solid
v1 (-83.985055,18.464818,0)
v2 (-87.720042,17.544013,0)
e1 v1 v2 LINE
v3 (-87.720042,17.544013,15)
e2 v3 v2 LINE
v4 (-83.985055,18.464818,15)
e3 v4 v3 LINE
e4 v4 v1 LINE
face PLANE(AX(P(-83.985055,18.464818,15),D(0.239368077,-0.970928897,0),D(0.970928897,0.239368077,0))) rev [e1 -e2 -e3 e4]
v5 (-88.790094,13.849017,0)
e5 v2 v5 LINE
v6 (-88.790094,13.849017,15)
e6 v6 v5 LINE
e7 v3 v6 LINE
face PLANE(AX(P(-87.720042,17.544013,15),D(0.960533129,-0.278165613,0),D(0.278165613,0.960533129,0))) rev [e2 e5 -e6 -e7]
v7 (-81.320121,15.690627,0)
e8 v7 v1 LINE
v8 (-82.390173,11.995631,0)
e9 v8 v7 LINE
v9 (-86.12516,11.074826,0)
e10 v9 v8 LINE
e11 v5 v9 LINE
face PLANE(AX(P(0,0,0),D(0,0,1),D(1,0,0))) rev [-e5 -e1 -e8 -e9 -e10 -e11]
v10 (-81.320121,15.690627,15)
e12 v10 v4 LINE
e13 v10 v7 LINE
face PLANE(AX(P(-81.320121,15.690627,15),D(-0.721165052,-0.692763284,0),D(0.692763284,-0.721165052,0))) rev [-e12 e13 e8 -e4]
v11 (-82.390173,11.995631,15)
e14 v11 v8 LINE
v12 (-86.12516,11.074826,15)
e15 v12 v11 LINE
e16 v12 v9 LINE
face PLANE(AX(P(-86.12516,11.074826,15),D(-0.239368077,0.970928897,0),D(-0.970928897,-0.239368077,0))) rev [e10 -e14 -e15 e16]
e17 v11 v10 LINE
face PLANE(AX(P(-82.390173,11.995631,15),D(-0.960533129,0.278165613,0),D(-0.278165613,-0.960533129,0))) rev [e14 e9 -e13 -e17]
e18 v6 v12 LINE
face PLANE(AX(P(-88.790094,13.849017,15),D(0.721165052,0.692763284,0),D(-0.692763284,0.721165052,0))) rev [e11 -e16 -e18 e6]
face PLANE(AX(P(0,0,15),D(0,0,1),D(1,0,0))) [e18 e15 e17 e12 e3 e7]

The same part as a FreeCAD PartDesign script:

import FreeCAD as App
import Part
import Sketcher

doc = App.newDocument("Part")
body = doc.addObject("PartDesign::Body", "Body")

sketch1 = body.newObject("Sketcher::SketchObject", "Sketch")
sketch1.AttachmentSupport = (doc.getObject("XY_Plane"), [""])
sketch1.MapMode = "FlatFace"
sketch1.addGeometry([
    Part.LineSegment(App.Vector(-84, 18.5, 0), App.Vector(-87.7, 17.5, 0)),
    Part.LineSegment(App.Vector(-87.7, 17.5, 0), App.Vector(-88.8, 13.8, 0)),
    Part.LineSegment(App.Vector(-88.8, 13.8, 0), App.Vector(-86.1, 11.1, 0)),
    Part.LineSegment(App.Vector(-86.1, 11.1, 0), App.Vector(-82.4, 12, 0)),
    Part.LineSegment(App.Vector(-82.4, 12, 0), App.Vector(-81.3, 15.7, 0)),
    Part.LineSegment(App.Vector(-81.3, 15.7, 0), App.Vector(-84, 18.5, 0)),
], False)
sketch1.addConstraint([
    Sketcher.Constraint("Coincident", 0, 2, 1, 1),
    Sketcher.Constraint("Coincident", 1, 2, 2, 1),
    Sketcher.Constraint("Coincident", 2, 2, 3, 1),
    Sketcher.Constraint("Coincident", 3, 2, 4, 1),
    Sketcher.Constraint("Coincident", 4, 2, 5, 1),
    Sketcher.Constraint("Coincident", 5, 2, 0, 1),
    Sketcher.Constraint("Parallel", 0, 3),
    Sketcher.Constraint("Parallel", 1, 4),
    Sketcher.Constraint("Parallel", 2, 5),
    Sketcher.Constraint("Equal", 0, 1),
    Sketcher.Constraint("Equal", 1, 2),
    Sketcher.Constraint("Equal", 2, 3),
    Sketcher.Constraint("DistanceY", 2, 2, 4, 2, 4.615802),
    Sketcher.Constraint("DistanceX", 0, 2, -1, 1, 87.720042),
    Sketcher.Constraint("DistanceX", 2, 2, -1, 1, 86.12516),
    Sketcher.Constraint("DistanceY", -1, 1, 3, 2, 11.995631),
    Sketcher.Constraint("DistanceX", 4, 2, -1, 1, 81.320121),
    Sketcher.Constraint("DistanceY", -1, 1, 5, 2, 18.464818),
])
pad1 = body.newObject("PartDesign::Pad", "Pad")
pad1.Profile = sketch1
pad1.Length = 15

doc.recompute()
